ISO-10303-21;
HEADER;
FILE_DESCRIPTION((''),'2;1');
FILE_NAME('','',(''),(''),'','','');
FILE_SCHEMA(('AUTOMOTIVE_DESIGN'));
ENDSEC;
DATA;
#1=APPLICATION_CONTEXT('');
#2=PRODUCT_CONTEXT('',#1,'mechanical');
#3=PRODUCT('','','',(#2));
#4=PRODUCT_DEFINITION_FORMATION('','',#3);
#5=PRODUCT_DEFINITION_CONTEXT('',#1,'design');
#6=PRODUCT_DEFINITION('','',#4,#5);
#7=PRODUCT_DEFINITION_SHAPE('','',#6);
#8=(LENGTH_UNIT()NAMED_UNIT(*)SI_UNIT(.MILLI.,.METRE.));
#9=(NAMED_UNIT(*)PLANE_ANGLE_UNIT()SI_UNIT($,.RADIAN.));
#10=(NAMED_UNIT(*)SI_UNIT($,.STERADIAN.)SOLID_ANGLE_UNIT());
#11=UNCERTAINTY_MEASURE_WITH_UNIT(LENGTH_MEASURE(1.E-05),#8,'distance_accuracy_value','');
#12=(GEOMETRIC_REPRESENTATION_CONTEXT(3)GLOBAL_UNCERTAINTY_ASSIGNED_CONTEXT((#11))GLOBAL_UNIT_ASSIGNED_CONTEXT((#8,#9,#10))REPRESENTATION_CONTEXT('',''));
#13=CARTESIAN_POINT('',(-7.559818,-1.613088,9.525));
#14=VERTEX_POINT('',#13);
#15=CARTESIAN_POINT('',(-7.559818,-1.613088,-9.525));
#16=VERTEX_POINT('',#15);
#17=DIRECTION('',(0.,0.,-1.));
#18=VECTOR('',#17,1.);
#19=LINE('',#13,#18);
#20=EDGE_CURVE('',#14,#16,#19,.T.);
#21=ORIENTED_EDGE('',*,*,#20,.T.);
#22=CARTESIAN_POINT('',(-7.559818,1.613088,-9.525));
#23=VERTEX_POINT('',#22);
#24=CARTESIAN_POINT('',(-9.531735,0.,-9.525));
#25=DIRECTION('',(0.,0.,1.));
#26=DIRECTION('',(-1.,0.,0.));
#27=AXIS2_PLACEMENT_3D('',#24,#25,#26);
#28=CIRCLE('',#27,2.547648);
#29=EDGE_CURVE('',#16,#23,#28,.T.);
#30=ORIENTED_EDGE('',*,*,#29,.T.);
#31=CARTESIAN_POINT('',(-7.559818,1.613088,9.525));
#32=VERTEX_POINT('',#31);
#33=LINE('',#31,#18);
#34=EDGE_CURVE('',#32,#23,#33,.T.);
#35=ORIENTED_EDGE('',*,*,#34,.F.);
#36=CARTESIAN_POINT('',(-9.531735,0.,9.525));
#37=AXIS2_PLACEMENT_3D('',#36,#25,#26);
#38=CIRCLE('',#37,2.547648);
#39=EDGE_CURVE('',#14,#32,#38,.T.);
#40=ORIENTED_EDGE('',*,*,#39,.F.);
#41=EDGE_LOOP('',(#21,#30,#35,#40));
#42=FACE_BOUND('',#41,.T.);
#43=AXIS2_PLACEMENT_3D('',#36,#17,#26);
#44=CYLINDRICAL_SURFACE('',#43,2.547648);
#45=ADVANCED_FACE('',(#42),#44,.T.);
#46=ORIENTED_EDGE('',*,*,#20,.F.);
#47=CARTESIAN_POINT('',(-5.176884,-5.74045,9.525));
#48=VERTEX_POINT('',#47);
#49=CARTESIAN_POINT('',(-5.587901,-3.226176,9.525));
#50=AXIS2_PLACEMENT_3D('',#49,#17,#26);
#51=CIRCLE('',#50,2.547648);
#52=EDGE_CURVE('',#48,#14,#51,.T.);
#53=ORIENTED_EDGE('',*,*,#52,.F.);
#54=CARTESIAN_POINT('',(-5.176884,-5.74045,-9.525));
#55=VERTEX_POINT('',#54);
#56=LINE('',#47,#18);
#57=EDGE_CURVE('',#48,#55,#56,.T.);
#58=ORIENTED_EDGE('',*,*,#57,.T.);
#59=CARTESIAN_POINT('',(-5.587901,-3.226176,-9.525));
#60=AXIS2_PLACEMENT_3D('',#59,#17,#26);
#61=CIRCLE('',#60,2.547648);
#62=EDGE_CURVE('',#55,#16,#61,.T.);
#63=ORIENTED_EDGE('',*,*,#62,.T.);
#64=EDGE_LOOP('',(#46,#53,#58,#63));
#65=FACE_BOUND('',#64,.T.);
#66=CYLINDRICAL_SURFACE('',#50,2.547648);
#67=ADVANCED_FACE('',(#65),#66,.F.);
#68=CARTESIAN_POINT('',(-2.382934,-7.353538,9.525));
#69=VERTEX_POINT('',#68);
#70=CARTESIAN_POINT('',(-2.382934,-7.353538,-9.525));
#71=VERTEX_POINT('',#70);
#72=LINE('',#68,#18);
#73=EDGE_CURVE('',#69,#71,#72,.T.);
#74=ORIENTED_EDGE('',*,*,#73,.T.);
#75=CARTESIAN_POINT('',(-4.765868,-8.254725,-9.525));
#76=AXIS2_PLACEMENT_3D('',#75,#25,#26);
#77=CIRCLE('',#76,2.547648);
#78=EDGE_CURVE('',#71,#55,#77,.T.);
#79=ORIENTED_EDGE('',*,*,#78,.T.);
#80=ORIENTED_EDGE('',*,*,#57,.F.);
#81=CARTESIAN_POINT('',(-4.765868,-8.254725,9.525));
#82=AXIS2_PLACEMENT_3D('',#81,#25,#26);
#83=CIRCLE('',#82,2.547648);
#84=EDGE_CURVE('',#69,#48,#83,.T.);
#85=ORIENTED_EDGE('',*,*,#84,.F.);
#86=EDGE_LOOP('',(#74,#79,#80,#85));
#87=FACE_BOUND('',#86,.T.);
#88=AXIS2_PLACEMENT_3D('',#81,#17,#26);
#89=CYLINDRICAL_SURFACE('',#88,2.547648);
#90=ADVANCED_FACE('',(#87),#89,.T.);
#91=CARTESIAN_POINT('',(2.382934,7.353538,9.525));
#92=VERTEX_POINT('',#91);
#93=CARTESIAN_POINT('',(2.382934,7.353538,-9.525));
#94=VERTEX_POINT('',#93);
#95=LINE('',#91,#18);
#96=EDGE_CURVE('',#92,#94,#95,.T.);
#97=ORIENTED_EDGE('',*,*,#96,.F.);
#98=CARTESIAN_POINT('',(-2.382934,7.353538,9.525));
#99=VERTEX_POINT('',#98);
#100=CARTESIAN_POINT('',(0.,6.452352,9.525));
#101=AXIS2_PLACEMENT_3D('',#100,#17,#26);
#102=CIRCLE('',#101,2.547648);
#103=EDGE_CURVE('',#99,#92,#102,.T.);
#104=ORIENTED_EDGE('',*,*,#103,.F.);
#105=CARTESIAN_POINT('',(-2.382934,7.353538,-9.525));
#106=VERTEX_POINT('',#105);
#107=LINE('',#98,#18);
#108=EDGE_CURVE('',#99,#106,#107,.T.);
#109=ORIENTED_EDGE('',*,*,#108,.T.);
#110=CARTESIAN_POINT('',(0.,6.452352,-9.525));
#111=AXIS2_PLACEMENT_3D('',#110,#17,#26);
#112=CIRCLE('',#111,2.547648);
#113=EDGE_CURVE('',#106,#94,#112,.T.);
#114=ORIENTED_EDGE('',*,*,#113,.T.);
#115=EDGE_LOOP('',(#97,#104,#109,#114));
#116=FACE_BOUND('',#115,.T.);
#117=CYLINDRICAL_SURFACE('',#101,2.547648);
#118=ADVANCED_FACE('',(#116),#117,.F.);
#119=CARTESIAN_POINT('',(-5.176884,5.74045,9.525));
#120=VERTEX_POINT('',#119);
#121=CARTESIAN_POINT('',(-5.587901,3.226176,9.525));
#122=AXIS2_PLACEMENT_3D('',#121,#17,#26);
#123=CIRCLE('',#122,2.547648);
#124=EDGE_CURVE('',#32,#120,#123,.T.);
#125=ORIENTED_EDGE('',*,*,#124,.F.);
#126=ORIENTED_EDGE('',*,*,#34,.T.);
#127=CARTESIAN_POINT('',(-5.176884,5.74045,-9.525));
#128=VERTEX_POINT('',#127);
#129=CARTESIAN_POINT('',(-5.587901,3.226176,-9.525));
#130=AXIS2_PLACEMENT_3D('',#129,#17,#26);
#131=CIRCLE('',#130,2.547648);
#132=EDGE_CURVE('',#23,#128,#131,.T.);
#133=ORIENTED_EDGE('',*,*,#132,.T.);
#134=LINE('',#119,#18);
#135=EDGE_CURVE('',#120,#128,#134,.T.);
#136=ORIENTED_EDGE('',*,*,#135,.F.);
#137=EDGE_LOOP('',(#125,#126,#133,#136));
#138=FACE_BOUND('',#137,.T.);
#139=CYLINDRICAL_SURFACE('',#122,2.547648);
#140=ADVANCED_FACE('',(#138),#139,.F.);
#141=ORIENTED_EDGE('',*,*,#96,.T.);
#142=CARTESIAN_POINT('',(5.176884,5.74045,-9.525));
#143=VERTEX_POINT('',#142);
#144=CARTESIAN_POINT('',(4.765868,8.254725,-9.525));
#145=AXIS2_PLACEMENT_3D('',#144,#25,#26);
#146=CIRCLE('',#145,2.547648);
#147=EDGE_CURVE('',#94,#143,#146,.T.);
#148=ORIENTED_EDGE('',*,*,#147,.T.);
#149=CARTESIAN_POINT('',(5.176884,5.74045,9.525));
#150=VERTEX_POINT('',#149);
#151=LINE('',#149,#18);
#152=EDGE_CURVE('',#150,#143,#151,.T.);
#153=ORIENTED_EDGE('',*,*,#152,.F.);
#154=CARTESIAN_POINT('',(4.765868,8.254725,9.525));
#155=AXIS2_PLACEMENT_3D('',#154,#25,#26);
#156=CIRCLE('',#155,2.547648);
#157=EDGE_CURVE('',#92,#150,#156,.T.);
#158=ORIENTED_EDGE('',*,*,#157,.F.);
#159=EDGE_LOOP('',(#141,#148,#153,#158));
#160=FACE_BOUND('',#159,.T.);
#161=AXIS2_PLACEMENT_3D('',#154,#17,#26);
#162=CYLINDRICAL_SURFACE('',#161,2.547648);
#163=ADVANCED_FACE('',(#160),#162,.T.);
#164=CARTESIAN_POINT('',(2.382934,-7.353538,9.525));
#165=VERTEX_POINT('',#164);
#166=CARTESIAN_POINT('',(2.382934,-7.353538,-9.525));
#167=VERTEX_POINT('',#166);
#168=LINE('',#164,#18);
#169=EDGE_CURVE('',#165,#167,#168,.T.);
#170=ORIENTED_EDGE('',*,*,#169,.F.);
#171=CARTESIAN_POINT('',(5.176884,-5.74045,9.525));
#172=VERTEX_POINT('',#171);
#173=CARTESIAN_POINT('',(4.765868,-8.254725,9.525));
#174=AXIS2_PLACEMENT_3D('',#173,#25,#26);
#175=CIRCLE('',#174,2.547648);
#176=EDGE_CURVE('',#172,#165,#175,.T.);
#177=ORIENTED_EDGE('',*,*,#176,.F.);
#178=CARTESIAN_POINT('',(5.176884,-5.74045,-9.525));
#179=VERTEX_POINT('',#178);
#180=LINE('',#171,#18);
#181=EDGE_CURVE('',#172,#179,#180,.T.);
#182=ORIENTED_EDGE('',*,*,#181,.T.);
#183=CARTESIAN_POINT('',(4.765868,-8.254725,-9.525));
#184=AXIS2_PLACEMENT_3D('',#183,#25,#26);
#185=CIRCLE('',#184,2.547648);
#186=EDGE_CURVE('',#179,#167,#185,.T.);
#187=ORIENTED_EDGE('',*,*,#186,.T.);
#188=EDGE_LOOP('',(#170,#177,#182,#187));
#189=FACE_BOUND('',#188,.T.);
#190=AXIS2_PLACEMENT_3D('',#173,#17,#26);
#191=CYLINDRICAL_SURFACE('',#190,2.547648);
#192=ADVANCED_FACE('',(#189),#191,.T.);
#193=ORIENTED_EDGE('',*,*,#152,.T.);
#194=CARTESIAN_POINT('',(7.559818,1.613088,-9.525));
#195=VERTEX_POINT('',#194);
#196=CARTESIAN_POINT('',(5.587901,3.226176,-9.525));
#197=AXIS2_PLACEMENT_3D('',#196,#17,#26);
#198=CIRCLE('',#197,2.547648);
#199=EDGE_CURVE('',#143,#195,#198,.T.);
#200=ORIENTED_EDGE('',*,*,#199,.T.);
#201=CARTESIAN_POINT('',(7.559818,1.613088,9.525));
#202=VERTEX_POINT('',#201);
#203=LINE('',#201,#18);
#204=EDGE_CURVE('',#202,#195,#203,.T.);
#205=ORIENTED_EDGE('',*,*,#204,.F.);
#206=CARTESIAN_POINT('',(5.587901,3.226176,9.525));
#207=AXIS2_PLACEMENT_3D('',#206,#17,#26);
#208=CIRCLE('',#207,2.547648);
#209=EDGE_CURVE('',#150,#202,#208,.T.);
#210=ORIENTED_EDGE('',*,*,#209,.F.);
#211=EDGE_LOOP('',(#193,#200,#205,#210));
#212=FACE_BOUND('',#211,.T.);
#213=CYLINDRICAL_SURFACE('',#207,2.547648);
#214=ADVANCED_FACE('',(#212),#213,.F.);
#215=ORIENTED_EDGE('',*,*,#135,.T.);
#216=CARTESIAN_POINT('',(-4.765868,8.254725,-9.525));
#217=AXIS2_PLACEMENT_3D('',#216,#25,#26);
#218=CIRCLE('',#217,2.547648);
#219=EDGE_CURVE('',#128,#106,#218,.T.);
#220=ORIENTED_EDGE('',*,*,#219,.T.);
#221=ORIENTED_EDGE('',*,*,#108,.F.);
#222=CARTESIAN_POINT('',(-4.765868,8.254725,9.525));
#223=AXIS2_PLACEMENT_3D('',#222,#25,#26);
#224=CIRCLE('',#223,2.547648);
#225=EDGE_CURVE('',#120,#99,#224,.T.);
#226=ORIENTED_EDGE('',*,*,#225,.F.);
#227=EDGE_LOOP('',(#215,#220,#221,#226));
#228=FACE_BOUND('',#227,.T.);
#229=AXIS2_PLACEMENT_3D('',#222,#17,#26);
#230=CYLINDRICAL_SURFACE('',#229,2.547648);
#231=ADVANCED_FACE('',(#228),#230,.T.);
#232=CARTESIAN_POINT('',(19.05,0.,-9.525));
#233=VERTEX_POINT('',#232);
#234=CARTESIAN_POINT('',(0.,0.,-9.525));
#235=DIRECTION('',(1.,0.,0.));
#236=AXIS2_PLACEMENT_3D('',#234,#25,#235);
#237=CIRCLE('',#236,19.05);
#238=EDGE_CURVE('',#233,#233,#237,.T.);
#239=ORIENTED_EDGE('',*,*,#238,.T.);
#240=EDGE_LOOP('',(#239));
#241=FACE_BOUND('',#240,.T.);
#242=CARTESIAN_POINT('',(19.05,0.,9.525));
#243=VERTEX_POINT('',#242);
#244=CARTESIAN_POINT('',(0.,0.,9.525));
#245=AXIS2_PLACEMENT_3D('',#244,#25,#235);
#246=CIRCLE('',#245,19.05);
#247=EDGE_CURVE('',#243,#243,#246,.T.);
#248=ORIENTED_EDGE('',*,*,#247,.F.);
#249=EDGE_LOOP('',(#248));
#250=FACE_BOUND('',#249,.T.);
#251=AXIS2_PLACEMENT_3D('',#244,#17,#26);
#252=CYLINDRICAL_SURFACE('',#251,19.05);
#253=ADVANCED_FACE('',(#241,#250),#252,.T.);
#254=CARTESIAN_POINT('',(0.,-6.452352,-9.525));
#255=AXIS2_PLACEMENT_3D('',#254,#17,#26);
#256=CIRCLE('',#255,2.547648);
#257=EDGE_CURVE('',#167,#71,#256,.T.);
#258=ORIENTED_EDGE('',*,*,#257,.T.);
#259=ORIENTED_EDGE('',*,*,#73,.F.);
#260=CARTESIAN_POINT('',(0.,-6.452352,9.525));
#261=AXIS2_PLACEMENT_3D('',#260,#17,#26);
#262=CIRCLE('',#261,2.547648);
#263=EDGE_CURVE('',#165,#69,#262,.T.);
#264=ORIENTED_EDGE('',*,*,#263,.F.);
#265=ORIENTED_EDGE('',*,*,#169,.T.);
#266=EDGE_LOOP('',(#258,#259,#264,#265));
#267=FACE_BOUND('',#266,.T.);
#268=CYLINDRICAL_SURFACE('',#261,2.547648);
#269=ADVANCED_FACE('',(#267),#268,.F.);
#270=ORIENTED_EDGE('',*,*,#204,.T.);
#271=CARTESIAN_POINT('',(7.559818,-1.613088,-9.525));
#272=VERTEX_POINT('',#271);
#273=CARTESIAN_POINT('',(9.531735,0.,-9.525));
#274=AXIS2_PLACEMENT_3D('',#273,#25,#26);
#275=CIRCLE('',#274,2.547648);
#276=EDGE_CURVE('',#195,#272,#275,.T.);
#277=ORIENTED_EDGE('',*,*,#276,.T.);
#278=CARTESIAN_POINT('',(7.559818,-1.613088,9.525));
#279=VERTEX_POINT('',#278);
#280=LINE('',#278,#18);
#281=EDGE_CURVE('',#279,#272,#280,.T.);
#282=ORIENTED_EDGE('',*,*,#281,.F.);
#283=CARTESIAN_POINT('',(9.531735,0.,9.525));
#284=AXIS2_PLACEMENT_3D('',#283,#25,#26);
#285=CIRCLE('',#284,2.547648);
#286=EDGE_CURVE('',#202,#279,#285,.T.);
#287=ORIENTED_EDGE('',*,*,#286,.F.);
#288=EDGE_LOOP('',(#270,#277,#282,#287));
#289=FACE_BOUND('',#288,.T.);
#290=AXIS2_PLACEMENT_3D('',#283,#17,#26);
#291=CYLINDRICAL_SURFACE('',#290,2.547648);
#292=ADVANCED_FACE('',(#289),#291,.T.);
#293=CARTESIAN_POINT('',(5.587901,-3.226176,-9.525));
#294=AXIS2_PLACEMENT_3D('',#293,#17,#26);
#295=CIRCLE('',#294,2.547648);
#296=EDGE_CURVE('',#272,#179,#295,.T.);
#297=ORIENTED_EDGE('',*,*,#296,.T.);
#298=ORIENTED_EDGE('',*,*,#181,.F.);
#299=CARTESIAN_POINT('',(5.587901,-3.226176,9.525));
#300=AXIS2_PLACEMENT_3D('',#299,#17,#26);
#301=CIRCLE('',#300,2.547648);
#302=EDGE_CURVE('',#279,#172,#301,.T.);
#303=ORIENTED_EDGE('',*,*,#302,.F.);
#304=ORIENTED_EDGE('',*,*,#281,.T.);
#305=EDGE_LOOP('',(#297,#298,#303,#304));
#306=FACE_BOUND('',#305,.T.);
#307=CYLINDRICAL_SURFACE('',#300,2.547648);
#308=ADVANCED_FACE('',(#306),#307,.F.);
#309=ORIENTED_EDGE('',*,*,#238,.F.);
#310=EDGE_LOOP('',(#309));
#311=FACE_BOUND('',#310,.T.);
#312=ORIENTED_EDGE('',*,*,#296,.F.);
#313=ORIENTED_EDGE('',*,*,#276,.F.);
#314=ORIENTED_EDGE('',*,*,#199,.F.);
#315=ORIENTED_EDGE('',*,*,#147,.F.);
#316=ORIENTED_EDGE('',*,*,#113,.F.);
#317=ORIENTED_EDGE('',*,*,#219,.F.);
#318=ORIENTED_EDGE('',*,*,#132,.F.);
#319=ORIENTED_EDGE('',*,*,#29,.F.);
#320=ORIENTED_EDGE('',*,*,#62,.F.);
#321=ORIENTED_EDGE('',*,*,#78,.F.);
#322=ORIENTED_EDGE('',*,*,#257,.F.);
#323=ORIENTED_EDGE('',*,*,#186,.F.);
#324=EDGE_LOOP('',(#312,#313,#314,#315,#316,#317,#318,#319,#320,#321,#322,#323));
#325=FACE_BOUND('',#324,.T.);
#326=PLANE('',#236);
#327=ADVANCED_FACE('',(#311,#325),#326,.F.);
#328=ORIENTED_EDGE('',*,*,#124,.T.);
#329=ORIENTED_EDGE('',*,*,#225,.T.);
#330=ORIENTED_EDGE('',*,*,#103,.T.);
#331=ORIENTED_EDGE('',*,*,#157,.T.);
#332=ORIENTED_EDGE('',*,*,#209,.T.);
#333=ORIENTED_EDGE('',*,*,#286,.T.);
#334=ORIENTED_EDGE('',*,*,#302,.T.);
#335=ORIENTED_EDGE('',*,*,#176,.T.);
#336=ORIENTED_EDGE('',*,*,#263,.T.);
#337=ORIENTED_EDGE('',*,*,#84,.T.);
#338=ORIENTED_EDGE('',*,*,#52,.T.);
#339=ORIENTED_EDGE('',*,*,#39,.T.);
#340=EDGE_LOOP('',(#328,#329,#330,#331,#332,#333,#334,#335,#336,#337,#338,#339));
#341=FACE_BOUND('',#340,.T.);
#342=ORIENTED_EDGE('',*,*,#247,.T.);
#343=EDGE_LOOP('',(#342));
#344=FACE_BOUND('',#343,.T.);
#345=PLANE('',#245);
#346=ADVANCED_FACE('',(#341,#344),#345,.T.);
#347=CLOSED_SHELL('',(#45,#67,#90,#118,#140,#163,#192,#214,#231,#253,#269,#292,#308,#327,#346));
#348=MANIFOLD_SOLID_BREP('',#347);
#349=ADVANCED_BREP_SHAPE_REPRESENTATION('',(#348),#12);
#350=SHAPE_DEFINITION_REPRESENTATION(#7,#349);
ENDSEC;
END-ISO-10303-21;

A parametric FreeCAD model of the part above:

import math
import FreeCAD as App
import Part
import Sketcher
Q = App.Units.Quantity

doc = App.newDocument("Part")
body = doc.addObject("PartDesign::Body", "Body")

sketch1 = body.newObject("Sketcher::SketchObject", "Sketch")
sketch1.AttachmentSupport = (doc.getObject("XY_Plane"), [""])
sketch1.MapMode = "FlatFace"
sketch1.addGeometry([
    Part.Circle(App.Vector(0, 0, 0), App.Vector(0, 0, 1), 19.05),
    Part.Circle(App.Vector(0, 0, 0), App.Vector(0, 0, 1), 5),
], False)
sketch1.addConstraint([
    Sketcher.Constraint("Coincident", 0, 3, -1, 1),
    Sketcher.Constraint("Coincident", 1, 3, -1, 1),
    Sketcher.Constraint("Diameter", 0, Q("1.5 in")),
    Sketcher.Constraint("Diameter", 1, Q("10 mm")),
])
pad1 = body.newObject("PartDesign::Pad", "Pad")
pad1.Profile = sketch1
pad1.Length = Q("0.75 in")
pad1.Midplane = True

sketch2 = body.newObject("Sketcher::SketchObject", "Sketch001")
sketch2.AttachmentSupport = (doc.getObject("XY_Plane"), [""])
sketch2.MapMode = "FlatFace"
sketch2.AttachmentOffset = App.Placement(App.Vector(0, 0, -0.375 * 25.4), App.Rotation())
sketch2.addGeometry([
    Part.ArcOfCircle(Part.Circle(App.Vector(4.765868, -8.254725, 0), App.Vector(0, 0, 1), 2.547648), math.radians(80.715793), math.radians(159.284207)),
    Part.ArcOfCircle(Part.Circle(App.Vector(0, -6.452352, 0), App.Vector(0, 0, 1), 2.547648), math.radians(-159.284207), math.radians(-20.715793)),
    Part.ArcOfCircle(Part.Circle(App.Vector(-4.765868, -8.254725, 0), App.Vector(0, 0, 1), 2.547648), math.radians(20.715793), math.radians(99.284207)),
    Part.ArcOfCircle(Part.Circle(App.Vector(-5.587901, -3.226176, 0), App.Vector(0, 0, 1), 2.547648), math.radians(140.715793), math.radians(279.284207)),
    Part.ArcOfCircle(Part.Circle(App.Vector(-9.531735, 0, 0), App.Vector(0, 0, 1), 2.547648), math.radians(-39.284207), math.radians(39.284207)),
    Part.ArcOfCircle(Part.Circle(App.Vector(-5.587901, 3.226176, 0), App.Vector(0, 0, 1), 2.547648), math.radians(80.715793), math.radians(219.284207)),
    Part.ArcOfCircle(Part.Circle(App.Vector(-4.765868, 8.254725, 0), App.Vector(0, 0, 1), 2.547648), math.radians(-99.284207), math.radians(-20.715793)),
    Part.ArcOfCircle(Part.Circle(App.Vector(0, 6.452352, 0), App.Vector(0, 0, 1), 2.547648), math.radians(20.715793), math.radians(159.284207)),
    Part.ArcOfCircle(Part.Circle(App.Vector(4.765868, 8.254725, 0), App.Vector(0, 0, 1), 2.547648), math.radians(-159.284207), math.radians(-80.715793)),
    Part.ArcOfCircle(Part.Circle(App.Vector(5.587901, 3.226176, 0), App.Vector(0, 0, 1), 2.547648), math.radians(-39.284207), math.radians(99.284207)),
    Part.ArcOfCircle(Part.Circle(App.Vector(9.531735, 0, 0), App.Vector(0, 0, 1), 2.547648), math.radians(140.715793), math.radians(219.284207)),
    Part.ArcOfCircle(Part.Circle(App.Vector(5.587901, -3.226176, 0), App.Vector(0, 0, 1), 2.547648), math.radians(-99.284207), math.radians(39.284207)),
], False)
sketch2.addConstraint([
    Sketcher.Constraint("Tangent", 0, 2, 1, 2),
    Sketcher.Constraint("Tangent", 1, 1, 2, 1),
    Sketcher.Constraint("Tangent", 2, 2, 3, 2),
    Sketcher.Constraint("Tangent", 3, 1, 4, 1),
    Sketcher.Constraint("Tangent", 4, 2, 5, 2),
    Sketcher.Constraint("Tangent", 5, 1, 6, 1),
    Sketcher.Constraint("Tangent", 6, 2, 7, 2),
    Sketcher.Constraint("Tangent", 7, 1, 8, 1),
    Sketcher.Constraint("Tangent", 8, 2, 9, 2),
    Sketcher.Constraint("Tangent", 9, 1, 10, 1),
    Sketcher.Constraint("Tangent", 10, 2, 11, 2),
    Sketcher.Constraint("Tangent", 11, 1, 0, 1),
    Sketcher.Constraint("Equal", 0, 1),
    Sketcher.Constraint("Equal", 1, 2),
    Sketcher.Constraint("Equal", 2, 3),
    Sketcher.Constraint("Equal", 3, 4),
    Sketcher.Constraint("Equal", 4, 5),
    Sketcher.Constraint("Equal", 5, 6),
    Sketcher.Constraint("Equal", 6, 7),
    Sketcher.Constraint("Equal", 7, 8),
    Sketcher.Constraint("Equal", 8, 9),
    Sketcher.Constraint("Equal", 9, 10),
    Sketcher.Constraint("Equal", 10, 11),
    Sketcher.Constraint("Symmetric", 0, 3, 6, 3, -1, 1),
    Sketcher.Constraint("Symmetric", 2, 3, 8, 3, -1, 1),
    Sketcher.Constraint("Symmetric", 4, 3, 10, 3, -1, 1),
    Sketcher.Constraint("Symmetric", 0, 3, 2, 3, -2),
    Sketcher.Constraint("PointOnObject", 4, 3, -1),
    Sketcher.Constraint("Radius", 0, Q("2.547648 mm")),
    Sketcher.Constraint("DistanceX", 3, 3, -1, 1, Q("5.587901 mm")),
    Sketcher.Constraint("DistanceY", 2, 3, 5, 3, Q("11.480901 mm")),
    Sketcher.Constraint("DistanceX", 2, 3, 0, 2, Q("7.148801 mm")),
])
pocket1 = body.newObject("PartDesign::Pocket", "Pocket")
pocket1.Profile = sketch2
pocket1.Type = "ThroughAll"
pocket1.Reversed = True

doc.recompute()
